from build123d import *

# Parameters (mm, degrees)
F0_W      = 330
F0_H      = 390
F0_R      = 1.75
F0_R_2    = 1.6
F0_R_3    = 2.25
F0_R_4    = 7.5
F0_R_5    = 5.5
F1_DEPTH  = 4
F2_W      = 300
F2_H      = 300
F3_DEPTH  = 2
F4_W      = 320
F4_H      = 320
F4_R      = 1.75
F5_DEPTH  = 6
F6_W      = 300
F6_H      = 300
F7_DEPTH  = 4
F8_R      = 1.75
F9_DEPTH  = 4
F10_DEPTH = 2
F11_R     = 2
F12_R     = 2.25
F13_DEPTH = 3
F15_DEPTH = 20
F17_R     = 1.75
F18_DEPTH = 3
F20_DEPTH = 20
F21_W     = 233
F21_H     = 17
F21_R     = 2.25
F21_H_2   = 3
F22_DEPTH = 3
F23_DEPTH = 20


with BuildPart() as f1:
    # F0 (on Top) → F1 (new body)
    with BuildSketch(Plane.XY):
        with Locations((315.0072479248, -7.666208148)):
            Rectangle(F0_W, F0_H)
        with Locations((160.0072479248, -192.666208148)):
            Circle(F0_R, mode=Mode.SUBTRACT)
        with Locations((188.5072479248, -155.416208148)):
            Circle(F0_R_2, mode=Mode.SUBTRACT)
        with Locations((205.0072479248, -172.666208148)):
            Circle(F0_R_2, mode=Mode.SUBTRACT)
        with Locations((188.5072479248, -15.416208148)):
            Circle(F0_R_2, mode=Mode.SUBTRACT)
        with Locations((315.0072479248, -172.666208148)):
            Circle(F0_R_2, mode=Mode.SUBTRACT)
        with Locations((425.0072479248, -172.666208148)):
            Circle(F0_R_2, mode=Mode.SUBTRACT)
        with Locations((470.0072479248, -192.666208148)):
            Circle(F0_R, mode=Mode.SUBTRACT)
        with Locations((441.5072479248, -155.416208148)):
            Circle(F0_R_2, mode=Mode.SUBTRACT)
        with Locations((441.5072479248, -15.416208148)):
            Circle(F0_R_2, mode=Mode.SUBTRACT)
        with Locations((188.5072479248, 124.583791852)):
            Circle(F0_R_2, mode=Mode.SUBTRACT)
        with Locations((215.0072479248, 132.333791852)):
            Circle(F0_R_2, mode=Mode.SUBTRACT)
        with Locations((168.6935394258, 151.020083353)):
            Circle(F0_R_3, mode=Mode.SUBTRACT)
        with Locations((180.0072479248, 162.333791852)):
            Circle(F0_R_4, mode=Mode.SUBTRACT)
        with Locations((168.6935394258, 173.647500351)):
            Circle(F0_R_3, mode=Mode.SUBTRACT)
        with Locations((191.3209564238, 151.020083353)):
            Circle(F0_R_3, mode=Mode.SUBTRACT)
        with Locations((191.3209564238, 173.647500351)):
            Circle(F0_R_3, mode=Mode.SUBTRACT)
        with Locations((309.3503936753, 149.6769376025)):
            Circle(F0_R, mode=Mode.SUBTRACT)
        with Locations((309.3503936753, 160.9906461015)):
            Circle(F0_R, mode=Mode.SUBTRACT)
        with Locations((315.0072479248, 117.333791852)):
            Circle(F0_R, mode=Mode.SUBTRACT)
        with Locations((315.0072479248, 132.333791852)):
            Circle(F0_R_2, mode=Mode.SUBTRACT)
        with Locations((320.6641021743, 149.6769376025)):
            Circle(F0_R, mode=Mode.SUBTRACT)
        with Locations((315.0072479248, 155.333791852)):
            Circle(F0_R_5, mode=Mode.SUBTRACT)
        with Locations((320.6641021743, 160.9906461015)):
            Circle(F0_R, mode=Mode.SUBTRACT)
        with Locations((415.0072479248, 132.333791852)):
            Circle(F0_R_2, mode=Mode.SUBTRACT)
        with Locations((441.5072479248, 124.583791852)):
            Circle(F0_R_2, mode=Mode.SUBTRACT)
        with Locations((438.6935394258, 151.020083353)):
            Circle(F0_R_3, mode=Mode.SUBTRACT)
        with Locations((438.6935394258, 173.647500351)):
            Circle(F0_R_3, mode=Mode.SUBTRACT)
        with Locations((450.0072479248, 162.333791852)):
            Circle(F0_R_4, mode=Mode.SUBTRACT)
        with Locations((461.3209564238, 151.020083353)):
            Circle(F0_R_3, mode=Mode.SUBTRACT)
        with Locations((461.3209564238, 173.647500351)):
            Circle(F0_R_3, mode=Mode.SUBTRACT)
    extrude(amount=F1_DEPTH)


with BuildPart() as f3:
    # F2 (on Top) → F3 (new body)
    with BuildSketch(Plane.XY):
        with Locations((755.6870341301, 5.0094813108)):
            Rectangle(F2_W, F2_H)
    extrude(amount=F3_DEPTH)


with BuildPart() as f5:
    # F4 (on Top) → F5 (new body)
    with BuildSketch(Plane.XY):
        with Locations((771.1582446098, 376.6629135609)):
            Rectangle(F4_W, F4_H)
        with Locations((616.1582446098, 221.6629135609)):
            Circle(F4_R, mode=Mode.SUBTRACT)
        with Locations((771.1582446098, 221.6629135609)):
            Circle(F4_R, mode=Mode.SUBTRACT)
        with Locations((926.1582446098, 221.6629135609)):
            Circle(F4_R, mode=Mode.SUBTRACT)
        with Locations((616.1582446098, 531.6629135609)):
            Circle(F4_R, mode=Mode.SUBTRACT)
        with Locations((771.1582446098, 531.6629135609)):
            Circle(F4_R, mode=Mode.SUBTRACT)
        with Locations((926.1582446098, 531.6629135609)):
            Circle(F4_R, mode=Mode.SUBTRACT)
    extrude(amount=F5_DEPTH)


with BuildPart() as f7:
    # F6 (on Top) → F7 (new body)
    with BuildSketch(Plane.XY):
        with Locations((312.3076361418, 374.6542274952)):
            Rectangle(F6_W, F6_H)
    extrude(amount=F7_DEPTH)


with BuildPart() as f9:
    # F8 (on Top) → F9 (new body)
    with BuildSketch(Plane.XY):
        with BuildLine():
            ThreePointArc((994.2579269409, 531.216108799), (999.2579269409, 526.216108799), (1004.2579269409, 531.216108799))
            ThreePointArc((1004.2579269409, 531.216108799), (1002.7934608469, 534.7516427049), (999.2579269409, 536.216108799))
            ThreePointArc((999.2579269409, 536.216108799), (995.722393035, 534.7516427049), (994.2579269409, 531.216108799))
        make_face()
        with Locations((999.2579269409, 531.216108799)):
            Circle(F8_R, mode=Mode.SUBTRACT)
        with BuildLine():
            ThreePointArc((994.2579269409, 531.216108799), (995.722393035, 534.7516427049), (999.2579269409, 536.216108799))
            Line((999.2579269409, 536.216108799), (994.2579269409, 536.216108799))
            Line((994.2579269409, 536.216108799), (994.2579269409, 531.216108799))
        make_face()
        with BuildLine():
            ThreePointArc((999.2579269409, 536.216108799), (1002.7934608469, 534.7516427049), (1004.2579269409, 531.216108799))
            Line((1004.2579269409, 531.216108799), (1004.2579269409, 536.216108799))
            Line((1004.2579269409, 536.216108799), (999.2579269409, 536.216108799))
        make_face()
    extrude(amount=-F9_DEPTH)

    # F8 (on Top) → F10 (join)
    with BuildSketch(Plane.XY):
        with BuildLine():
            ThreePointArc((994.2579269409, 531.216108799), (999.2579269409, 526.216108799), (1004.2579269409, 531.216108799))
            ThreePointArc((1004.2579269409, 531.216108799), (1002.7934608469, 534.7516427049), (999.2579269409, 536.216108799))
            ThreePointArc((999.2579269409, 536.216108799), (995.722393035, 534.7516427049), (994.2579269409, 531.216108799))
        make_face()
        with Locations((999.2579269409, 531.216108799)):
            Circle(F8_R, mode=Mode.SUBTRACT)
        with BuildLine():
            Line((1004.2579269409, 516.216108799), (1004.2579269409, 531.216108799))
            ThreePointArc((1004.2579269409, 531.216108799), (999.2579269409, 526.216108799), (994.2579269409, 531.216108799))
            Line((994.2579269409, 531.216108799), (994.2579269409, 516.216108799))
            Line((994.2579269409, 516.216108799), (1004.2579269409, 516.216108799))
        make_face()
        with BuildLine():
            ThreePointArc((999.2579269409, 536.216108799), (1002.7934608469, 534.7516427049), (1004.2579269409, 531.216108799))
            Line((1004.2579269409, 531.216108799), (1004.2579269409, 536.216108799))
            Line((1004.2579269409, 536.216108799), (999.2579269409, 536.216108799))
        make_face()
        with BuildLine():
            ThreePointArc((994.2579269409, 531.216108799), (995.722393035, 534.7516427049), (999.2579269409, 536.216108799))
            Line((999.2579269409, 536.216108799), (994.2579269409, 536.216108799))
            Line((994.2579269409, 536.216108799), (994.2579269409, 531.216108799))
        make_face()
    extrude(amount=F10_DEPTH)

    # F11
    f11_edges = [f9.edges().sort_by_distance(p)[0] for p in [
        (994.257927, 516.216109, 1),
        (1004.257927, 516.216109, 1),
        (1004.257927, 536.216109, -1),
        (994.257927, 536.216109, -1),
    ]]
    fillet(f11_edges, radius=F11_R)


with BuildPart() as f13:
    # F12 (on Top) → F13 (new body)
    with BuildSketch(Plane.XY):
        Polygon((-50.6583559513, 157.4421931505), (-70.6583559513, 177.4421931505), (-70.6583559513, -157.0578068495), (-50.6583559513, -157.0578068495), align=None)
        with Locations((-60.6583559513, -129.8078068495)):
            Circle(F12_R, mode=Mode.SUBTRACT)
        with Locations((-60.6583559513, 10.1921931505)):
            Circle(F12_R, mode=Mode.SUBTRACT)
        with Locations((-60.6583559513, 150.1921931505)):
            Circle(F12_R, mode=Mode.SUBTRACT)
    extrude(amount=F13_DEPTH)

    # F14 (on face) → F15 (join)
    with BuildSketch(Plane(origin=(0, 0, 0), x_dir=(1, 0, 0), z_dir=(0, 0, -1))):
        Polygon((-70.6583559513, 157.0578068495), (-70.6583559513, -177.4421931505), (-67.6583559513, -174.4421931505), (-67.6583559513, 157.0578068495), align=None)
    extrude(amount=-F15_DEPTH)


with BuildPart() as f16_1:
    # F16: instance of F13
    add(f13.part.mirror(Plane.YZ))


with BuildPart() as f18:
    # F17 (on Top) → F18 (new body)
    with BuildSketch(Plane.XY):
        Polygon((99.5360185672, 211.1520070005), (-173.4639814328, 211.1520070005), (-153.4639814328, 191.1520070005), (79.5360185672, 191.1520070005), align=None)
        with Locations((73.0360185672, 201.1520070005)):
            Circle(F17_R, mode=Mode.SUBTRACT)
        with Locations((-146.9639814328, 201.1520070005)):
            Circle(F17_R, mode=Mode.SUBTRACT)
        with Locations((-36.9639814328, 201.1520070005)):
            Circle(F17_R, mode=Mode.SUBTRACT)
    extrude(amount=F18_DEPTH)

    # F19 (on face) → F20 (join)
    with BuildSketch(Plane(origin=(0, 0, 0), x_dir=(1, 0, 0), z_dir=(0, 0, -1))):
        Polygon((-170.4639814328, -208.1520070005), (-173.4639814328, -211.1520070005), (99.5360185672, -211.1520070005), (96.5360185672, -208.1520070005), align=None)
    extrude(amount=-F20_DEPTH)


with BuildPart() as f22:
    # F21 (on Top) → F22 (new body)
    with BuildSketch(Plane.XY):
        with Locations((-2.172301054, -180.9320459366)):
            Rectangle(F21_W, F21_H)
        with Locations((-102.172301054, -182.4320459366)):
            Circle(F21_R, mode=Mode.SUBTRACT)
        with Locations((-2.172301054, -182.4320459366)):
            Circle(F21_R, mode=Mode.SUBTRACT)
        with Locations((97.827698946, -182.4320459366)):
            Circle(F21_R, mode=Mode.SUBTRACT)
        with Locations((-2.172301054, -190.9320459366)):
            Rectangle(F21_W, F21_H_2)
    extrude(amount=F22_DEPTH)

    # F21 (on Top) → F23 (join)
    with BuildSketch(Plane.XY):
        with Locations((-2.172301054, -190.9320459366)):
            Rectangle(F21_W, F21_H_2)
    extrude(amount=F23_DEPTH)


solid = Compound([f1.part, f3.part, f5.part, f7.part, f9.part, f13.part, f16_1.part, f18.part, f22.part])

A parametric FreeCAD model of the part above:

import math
import FreeCAD as App
import Part
import Sketcher

V = App.Vector
Q = App.Units.Quantity


def edges_at(feature, points):
    """Names of the edges that pass closest to the given points."""
    edges = feature.Shape.Edges
    near = lambda p: min(range(len(edges)), key=lambda i: edges[i].distToShape(Part.Vertex(*p))[0])
    return sorted({f"Edge{near(p) + 1}" for p in points})

doc = App.newDocument("Part")
params = doc.addObject("Spreadsheet::Sheet", "Params")
for row, (alias, value) in enumerate([
    ("sketch1_diameter", "15 mm"),
    ("sketch1_diameter2", "11 mm"),
    ("sketch1_diameter3", "3.5 mm"),
    ("sketch1_diameter4", "3.2 mm"),
    ("sketch1_diameter5", "4.5 mm"),
    ("pad1_length", "4 mm"),
    ("sketch2_width", "300 mm"),
    ("pad2_length", "2 mm"),
    ("sketch3_diameter", "3.5 mm"),
    ("sketch3_width", "320 mm"),
    ("pad3_length", "6 mm"),
    ("sketch4_width", "300 mm"),
    ("pad4_length", "4 mm"),
    ("sketch5_radius", "5 mm"),
    ("sketch5_diameter", "3.5 mm"),
    ("sketch5_height", "5 mm"),
    ("pad5_length", "4 mm"),
    ("sketch6_diameter", "3.5 mm"),
    ("sketch6_width", "10 mm"),
    ("sketch6_height", "20 mm"),
    ("pad6_length", "2 mm"),
    ("fillet_radius", "2 mm"),
    ("sketch7_diameter", "4.5 mm"),
    ("sketch7_width", "20 mm"),
    ("sketch7_height", "334.5 mm"),
    ("pad7_length", "3 mm"),
    ("sketch8_width", "3 mm"),
    ("sketch8_height", "334.5 mm"),
    ("pad8_length", "20 mm"),
    ("sketch9_diameter", "3.5 mm"),
    ("sketch9_width", "273 mm"),
    ("sketch9_width2", "233 mm"),
    ("pad9_length", "3 mm"),
    ("sketch10_width", "273 mm"),
    ("sketch10_width2", "267 mm"),
    ("pad10_length", "20 mm"),
    ("sketch11_diameter", "4.5 mm"),
    ("sketch11_width", "233 mm"),
    ("sketch11_height", "20 mm"),
    ("pad11_length", "3 mm"),
    ("sketch12_width", "233 mm"),
    ("sketch12_height", "3 mm"),
    ("pad12_length", "20 mm"),
], start=1):
    params.set(f"A{row}", alias)
    params.set(f"B{row}", "=" + value)
    params.setAlias(f"B{row}", alias)

body = doc.addObject("PartDesign::Body", "Body")

# Sketch on XY plane
sketch1 = doc.addObject("Sketcher::SketchObject", "Sketch")
body.addObject(sketch1)
sketch1.AttachmentSupport = (doc.XY_Plane, [""])
sketch1.MapMode = "FlatFace"
sketch1.addGeometry([
    Part.LineSegment(V(150, 187.3, 0), V(150, -202.7, 0)),  # 0
    Part.LineSegment(V(150, -202.7, 0), V(480, -202.7, 0)),  # 1
    Part.LineSegment(V(480, -202.7, 0), V(480, 187.3, 0)),  # 2
    Part.LineSegment(V(480, 187.3, 0), V(150, 187.3, 0)),  # 3
    Part.Circle(V(160, -192.7, 0), V(0, 0, 1), 1.8),  # 4
    Part.Circle(V(188.5, -155.4, 0), V(0, 0, 1), 1.6),  # 5
    Part.Circle(V(205, -172.7, 0), V(0, 0, 1), 1.6),  # 6
    Part.Circle(V(188.5, -15.4, 0), V(0, 0, 1), 1.6),  # 7
    Part.Circle(V(315, -172.7, 0), V(0, 0, 1), 1.6),  # 8
    Part.Circle(V(425, -172.7, 0), V(0, 0, 1), 1.6),  # 9
    Part.Circle(V(470, -192.7, 0), V(0, 0, 1), 1.8),  # 10
    Part.Circle(V(441.5, -155.4, 0), V(0, 0, 1), 1.6),  # 11
    Part.Circle(V(441.5, -15.4, 0), V(0, 0, 1), 1.6),  # 12
    Part.Circle(V(188.5, 124.6, 0), V(0, 0, 1), 1.6),  # 13
    Part.Circle(V(168.7, 151, 0), V(0, 0, 1), 2.2),  # 14
    Part.Circle(V(191.3, 151, 0), V(0, 0, 1), 2.2),  # 15
    Part.Circle(V(168.7, 173.6, 0), V(0, 0, 1), 2.2),  # 16
    Part.Circle(V(180, 162.3, 0), V(0, 0, 1), 7.5),  # 17
    Part.Circle(V(191.3, 173.6, 0), V(0, 0, 1), 2.2),  # 18
    Part.Circle(V(215, 132.3, 0), V(0, 0, 1), 1.6),  # 19
    Part.Circle(V(309.4, 149.7, 0), V(0, 0, 1), 1.8),  # 20
    Part.Circle(V(309.4, 161, 0), V(0, 0, 1), 1.8),  # 21
    Part.Circle(V(315, 117.3, 0), V(0, 0, 1), 1.8),  # 22
    Part.Circle(V(315, 132.3, 0), V(0, 0, 1), 1.6),  # 23
    Part.Circle(V(320.7, 149.7, 0), V(0, 0, 1), 1.8),  # 24
    Part.Circle(V(315, 155.3, 0), V(0, 0, 1), 5.5),  # 25
    Part.Circle(V(320.7, 161, 0), V(0, 0, 1), 1.8),  # 26
    Part.Circle(V(441.5, 124.6, 0), V(0, 0, 1), 1.6),  # 27
    Part.Circle(V(415, 132.3, 0), V(0, 0, 1), 1.6),  # 28
    Part.Circle(V(438.7, 151, 0), V(0, 0, 1), 2.2),  # 29
    Part.Circle(V(461.3, 151, 0), V(0, 0, 1), 2.2),  # 30
    Part.Circle(V(450, 162.3, 0), V(0, 0, 1), 7.5),  # 31
    Part.Circle(V(438.7, 173.6, 0), V(0, 0, 1), 2.2),  # 32
    Part.Circle(V(461.3, 173.6, 0), V(0, 0, 1), 2.2),  # 33
], False)
sketch1.addConstraint([
    Sketcher.Constraint("Coincident", 0, 2, 1, 1),
    Sketcher.Constraint("Coincident", 1, 2, 2, 1),
    Sketcher.Constraint("Coincident", 2, 2, 3, 1),
    Sketcher.Constraint("Coincident", 3, 2, 0, 1),
    Sketcher.Constraint("Vertical", 0),
    Sketcher.Constraint("Horizontal", 1),
    Sketcher.Constraint("Vertical", 2),
    Sketcher.Constraint("Horizontal", 3),
    Sketcher.Constraint("Equal", 5, 6),
    Sketcher.Constraint("Equal", 6, 7),
    Sketcher.Constraint("Equal", 7, 8),
    Sketcher.Constraint("Equal", 8, 9),
    Sketcher.Constraint("Equal", 4, 10),
    Sketcher.Constraint("Equal", 9, 11),
    Sketcher.Constraint("Equal", 11, 12),
    Sketcher.Constraint("Equal", 12, 13),
    Sketcher.Constraint("Equal", 14, 15),
    Sketcher.Constraint("Equal", 15, 16),
    Sketcher.Constraint("Equal", 16, 18),
    Sketcher.Constraint("Equal", 13, 19),
    Sketcher.Constraint("Equal", 10, 20),
    Sketcher.Constraint("Equal", 20, 21),
    Sketcher.Constraint("Equal", 21, 22),
    Sketcher.Constraint("Equal", 19, 23),
    Sketcher.Constraint("Equal", 22, 24),
    Sketcher.Constraint("Equal", 24, 26),
    Sketcher.Constraint("Equal", 23, 27),
    Sketcher.Constraint("Equal", 27, 28),
    Sketcher.Constraint("Equal", 18, 29),
    Sketcher.Constraint("Equal", 29, 30),
    Sketcher.Constraint("Equal", 17, 31),
    Sketcher.Constraint("Equal", 30, 32),
    Sketcher.Constraint("Equal", 32, 33),
    Sketcher.Constraint("Horizontal", 6, 3, 8, 3),
    Sketcher.Constraint("Horizontal", 8, 3, 9, 3),
    Sketcher.Constraint("Horizontal", 4, 3, 10, 3),
    Sketcher.Constraint("Horizontal", 5, 3, 11, 3),
    Sketcher.Constraint("Horizontal", 7, 3, 12, 3),
    Sketcher.Constraint("Horizontal", 14, 3, 15, 3),
    Sketcher.Constraint("Horizontal", 16, 3, 18, 3),
    Sketcher.Constraint("Horizontal", 19, 3, 23, 3),
    Sketcher.Constraint("Horizontal", 20, 3, 24, 3),
    Sketcher.Constraint("Horizontal", 21, 3, 26, 3),
    Sketcher.Constraint("Horizontal", 13, 3, 27, 3),
    Sketcher.Constraint("Horizontal", 23, 3, 28, 3),
    Sketcher.Constraint("Horizontal", 15, 3, 29, 3),
    Sketcher.Constraint("Horizontal", 29, 3, 30, 3),
    Sketcher.Constraint("Horizontal", 17, 3, 31, 3),
    Sketcher.Constraint("Horizontal", 18, 3, 32, 3),
    Sketcher.Constraint("Horizontal", 32, 3, 33, 3),
    Sketcher.Constraint("Vertical", 5, 3, 7, 3),
    Sketcher.Constraint("Vertical", 11, 3, 12, 3),
    Sketcher.Constraint("Vertical", 7, 3, 13, 3),
    Sketcher.Constraint("Vertical", 14, 3, 16, 3),
    Sketcher.Constraint("Vertical", 15, 3, 18, 3),
    Sketcher.Constraint("Vertical", 20, 3, 21, 3),
    Sketcher.Constraint("Vertical", 8, 3, 22, 3),
    Sketcher.Constraint("Vertical", 22, 3, 23, 3),
    Sketcher.Constraint("Vertical", 23, 3, 25, 3),
    Sketcher.Constraint("Vertical", 24, 3, 26, 3),
    Sketcher.Constraint("Vertical", 12, 3, 27, 3),
    Sketcher.Constraint("Vertical", 29, 3, 32, 3),
    Sketcher.Constraint("Vertical", 30, 3, 33, 3),
    Sketcher.Constraint("Diameter", 17, Q("15 mm")),
    Sketcher.Constraint("Diameter", 25, Q("11 mm")),
    Sketcher.Constraint("Diameter", 4, Q("3.5 mm")),
    Sketcher.Constraint("Diameter", 5, Q("3.2 mm")),
    Sketcher.Constraint("Diameter", 14, Q("4.5 mm")),
    Sketcher.Constraint("DistanceX", 1, 1, 1, 2, Q("330 mm")),
    Sketcher.Constraint("DistanceY", 0, 2, 0, 1, Q("390 mm")),
    Sketcher.Constraint("DistanceX", 4, 3, 6, 3, Q("45 mm")),
    Sketcher.Constraint("DistanceY", 4, 3, 6, 3, Q("20 mm")),
    Sketcher.Constraint("DistanceY", 5, 3, 7, 3, Q("140 mm")),
    Sketcher.Constraint("DistanceX", 6, 3, 8, 3, Q("110 mm")),
    Sketcher.Constraint("DistanceX", 8, 3, 9, 3, Q("110 mm")),
    Sketcher.Constraint("DistanceX", 9, 3, 10, 3, Q("45 mm")),
    Sketcher.Constraint("DistanceX", 5, 3, 11, 3, Q("253 mm")),
    Sketcher.Constraint("DistanceY", 7, 3, 13, 3, Q("140 mm")),
    Sketcher.Constraint("DistanceX", 17, 3, 19, 3, Q("35 mm")),
    Sketcher.Constraint("DistanceY", 19, 3, 17, 3, Q("30 mm")),
    Sketcher.Constraint("DistanceX", 19, 3, 22, 3, Q("100 mm")),
    Sketcher.Constraint("DistanceY", 22, 3, 19, 3, Q("15 mm")),
    Sketcher.Constraint("DistanceY", 23, 3, 25, 3, Q("23 mm")),
    Sketcher.Constraint("DistanceX", 23, 3, 28, 3, Q("100 mm")),
    Sketcher.Constraint("DistanceX", 28, 3, 31, 3, Q("35 mm")),
    Sketcher.Constraint("DistanceX", 0, 2, 4, 3, Q("10 mm")),
    Sketcher.Constraint("DistanceY", 0, 2, 4, 3, Q("10 mm")),
    Sketcher.Constraint("DistanceY", 31, 3, 2, 2, Q("25 mm")),
    Sketcher.Constraint("DistanceX", 4, 3, 5, 3, Q("28.5 mm")),
    Sketcher.Constraint("DistanceY", 4, 3, 5, 3, Q("37.25 mm")),
    Sketcher.Constraint("DistanceY", -1, 1, 16, 3, Q("173.6475 mm")),
    Sketcher.Constraint("DistanceY", 4, 3, -1, 1, Q("192.666208 mm")),
    Sketcher.Constraint("DistanceX", -1, 1, 14, 3, Q("168.693539 mm")),
    Sketcher.Constraint("DistanceX", -1, 1, 29, 3, Q("438.693539 mm")),
    Sketcher.Constraint("DistanceX", 14, 3, 13, 3, Q("19.813708 mm")),
    Sketcher.Constraint("DistanceY", 13, 3, 14, 3, Q("26.436292 mm")),
    Sketcher.Constraint("DistanceX", 13, 3, 15, 3, Q("2.813708 mm")),
    Sketcher.Constraint("DistanceY", 20, 3, 21, 3, Q("11.313708 mm")),
    Sketcher.Constraint("DistanceX", 20, 3, 24, 3, Q("11.313708 mm")),
    Sketcher.Constraint("DistanceX", 27, 3, 30, 3, Q("19.813708 mm")),
    Sketcher.Constraint("DistanceX", -1, 1, 20, 3, Q("309.350394 mm")),
    Sketcher.Constraint("DistanceY", -1, 1, 20, 3, Q("149.676938 mm")),
])
sketch1.setExpression("Constraints[63]", "Params.sketch1_diameter")
sketch1.setExpression("Constraints[64]", "Params.sketch1_diameter2")
sketch1.setExpression("Constraints[65]", "Params.sketch1_diameter3")
sketch1.setExpression("Constraints[66]", "Params.sketch1_diameter4")
sketch1.setExpression("Constraints[67]", "Params.sketch1_diameter5")
pad1 = doc.addObject("PartDesign::Pad", "Pad")
body.addObject(pad1)
pad1.Profile = sketch1
pad1.setExpression("Length", "Params.pad1_length")
body2 = doc.addObject("PartDesign::Body", "Body001")

# Sketch on XY plane
sketch2 = doc.addObject("Sketcher::SketchObject", "Sketch001")
body2.addObject(sketch2)
sketch2.AttachmentSupport = (doc.getObject("XY_Plane001"), [""])
sketch2.MapMode = "FlatFace"
sketch2.addGeometry([
    Part.LineSegment(V(606, 155, 0), V(606, -145, 0)),
    Part.LineSegment(V(606, -145, 0), V(906, -145, 0)),
    Part.LineSegment(V(906, -145, 0), V(906, 155, 0)),
    Part.LineSegment(V(906, 155, 0), V(606, 155, 0)),
], False)
sketch2.addConstraint([
    Sketcher.Constraint("Coincident", 0, 2, 1, 1),
    Sketcher.Constraint("Coincident", 1, 2, 2, 1),
    Sketcher.Constraint("Coincident", 2, 2, 3, 1),
    Sketcher.Constraint("Coincident", 3, 2, 0, 1),
    Sketcher.Constraint("Vertical", 0),
    Sketcher.Constraint("Horizontal", 1),
    Sketcher.Constraint("Vertical", 2),
    Sketcher.Constraint("Horizontal", 3),
    Sketcher.Constraint("Equal", 3, 0),
    Sketcher.Constraint("DistanceX", 1, 1, 1, 2, Q("300 mm")),
    Sketcher.Constraint("DistanceY", 0, 2, -1, 1, Q("144.990519 mm")),
    Sketcher.Constraint("DistanceX", -1, 1, 0, 2, Q("605.687034 mm")),
])
sketch2.setExpression("Constraints[9]", "Params.sketch2_width")
pad2 = doc.addObject("PartDesign::Pad", "Pad001")
body2.addObject(pad2)
pad2.Profile = sketch2
pad2.setExpression("Length", "Params.pad2_length")
body3 = doc.addObject("PartDesign::Body", "Body002")

# Sketch on XY plane
sketch3 = doc.addObject("Sketcher::SketchObject", "Sketch002")
body3.addObject(sketch3)
sketch3.AttachmentSupport = (doc.getObject("XY_Plane002"), [""])
sketch3.MapMode = "FlatFace"
sketch3.addGeometry([
    Part.LineSegment(V(611.2, 536.7, 0), V(611.2, 216.7, 0)),  # 0
    Part.LineSegment(V(611.2, 216.7, 0), V(931.2, 216.7, 0)),  # 1
    Part.LineSegment(V(931.2, 216.7, 0), V(931.2, 536.7, 0)),  # 2
    Part.LineSegment(V(931.2, 536.7, 0), V(611.2, 536.7, 0)),  # 3
    Part.Circle(V(616.2, 221.7, 0), V(0, 0, 1), 1.8),  # 4
    Part.Circle(V(771.2, 221.7, 0), V(0, 0, 1), 1.8),  # 5
    Part.Circle(V(926.2, 221.7, 0), V(0, 0, 1), 1.8),  # 6
    Part.Circle(V(616.2, 531.7, 0), V(0, 0, 1), 1.8),  # 7
    Part.Circle(V(771.2, 531.7, 0), V(0, 0, 1), 1.8),  # 8
    Part.Circle(V(926.2, 531.7, 0), V(0, 0, 1), 1.8),  # 9
], False)
sketch3.addConstraint([
    Sketcher.Constraint("Coincident", 0, 2, 1, 1),
    Sketcher.Constraint("Coincident", 1, 2, 2, 1),
    Sketcher.Constraint("Coincident", 2, 2, 3, 1),
    Sketcher.Constraint("Coincident", 3, 2, 0, 1),
    Sketcher.Constraint("Vertical", 0),
    Sketcher.Constraint("Horizontal", 1),
    Sketcher.Constraint("Vertical", 2),
    Sketcher.Constraint("Horizontal", 3),
    Sketcher.Constraint("Equal", 4, 5),
    Sketcher.Constraint("Equal", 5, 6),
    Sketcher.Constraint("Equal", 6, 7),
    Sketcher.Constraint("Equal", 7, 8),
    Sketcher.Constraint("Equal", 8, 9),
    Sketcher.Constraint("Horizontal", 4, 3, 5, 3),
    Sketcher.Constraint("Horizontal", 5, 3, 6, 3),
    Sketcher.Constraint("Horizontal", 7, 3, 8, 3),
    Sketcher.Constraint("Horizontal", 8, 3, 9, 3),
    Sketcher.Constraint("Vertical", 4, 3, 7, 3),
    Sketcher.Constraint("Vertical", 5, 3, 8, 3),
    Sketcher.Constraint("Vertical", 6, 3, 9, 3),
    Sketcher.Constraint("Equal", 3, 0),
    Sketcher.Constraint("Diameter", 4, Q("3.5 mm")),
    Sketcher.Constraint("DistanceX", 1, 1, 1, 2, Q("320 mm")),
    Sketcher.Constraint("DistanceX", 4, 3, 5, 3, Q("155 mm")),
    Sketcher.Constraint("DistanceX", 5, 3, 6, 3, Q("155 mm")),
    Sketcher.Constraint("DistanceY", 4, 3, 7, 3, Q("310 mm")),
    Sketcher.Constraint("DistanceX", 0, 2, 4, 3, Q("5 mm")),
    Sketcher.Constraint("DistanceY", 0, 2, 4, 3, Q("5 mm")),
    Sketcher.Constraint("DistanceX", -1, 1, 4, 3, Q("616.158245 mm")),
    Sketcher.Constraint("DistanceY", -1, 1, 4, 3, Q("221.662914 mm")),
])
sketch3.setExpression("Constraints[21]", "Params.sketch3_diameter")
sketch3.setExpression("Constraints[22]", "Params.sketch3_width")
pad3 = doc.addObject("PartDesign::Pad", "Pad002")
body3.addObject(pad3)
pad3.Profile = sketch3
pad3.setExpression("Length", "Params.pad3_length")
body4 = doc.addObject("PartDesign::Body", "Body003")

# Sketch on XY plane
sketch4 = doc.addObject("Sketcher::SketchObject", "Sketch003")
body4.addObject(sketch4)
sketch4.AttachmentSupport = (doc.getObject("XY_Plane003"), [""])
sketch4.MapMode = "FlatFace"
sketch4.addGeometry([
    Part.LineSegment(V(162, 525, 0), V(162, 225, 0)),
    Part.LineSegment(V(162, 225, 0), V(462, 225, 0)),
    Part.LineSegment(V(462, 225, 0), V(462, 525, 0)),
    Part.LineSegment(V(462, 525, 0), V(162, 525, 0)),
], False)
sketch4.addConstraint([
    Sketcher.Constraint("Coincident", 0, 2, 1, 1),
    Sketcher.Constraint("Coincident", 1, 2, 2, 1),
    Sketcher.Constraint("Coincident", 2, 2, 3, 1),
    Sketcher.Constraint("Coincident", 3, 2, 0, 1),
    Sketcher.Constraint("Vertical", 0),
    Sketcher.Constraint("Horizontal", 1),
    Sketcher.Constraint("Vertical", 2),
    Sketcher.Constraint("Horizontal", 3),
    Sketcher.Constraint("Equal", 3, 0),
    Sketcher.Constraint("DistanceX", 1, 1, 1, 2, Q("300 mm")),
    Sketcher.Constraint("DistanceX", -1, 1, 0, 2, Q("162.307636 mm")),
    Sketcher.Constraint("DistanceY", -1, 1, 0, 2, Q("224.654227 mm")),
])
sketch4.setExpression("Constraints[9]", "Params.sketch4_width")
pad4 = doc.addObject("PartDesign::Pad", "Pad003")
body4.addObject(pad4)
pad4.Profile = sketch4
pad4.setExpression("Length", "Params.pad4_length")
body5 = doc.addObject("PartDesign::Body", "Body004")

# Sketch on XY plane
sketch5 = doc.addObject("Sketcher::SketchObject", "Sketch004")
body5.addObject(sketch5)
sketch5.AttachmentSupport = (doc.getObject("XY_Plane004"), [""])
sketch5.MapMode = "FlatFace"
sketch5.addGeometry([
    Part.ArcOfCircle(Part.Circle(V(999.3, 531.2, 0), V(0, 0, 1), 5), math.radians(180), math.radians(360)),  # 0
    Part.LineSegment(V(1004.3, 531.2, 0), V(1004.3, 536.2, 0)),  # 1
    Part.LineSegment(V(1004.3, 536.2, 0), V(994.3, 536.2, 0)),  # 2
    Part.LineSegment(V(994.3, 536.2, 0), V(994.3, 531.2, 0)),  # 3
    Part.Circle(V(999.3, 531.2, 0), V(0, 0, 1), 1.8),  # 4
], False)
sketch5.addConstraint([
    Sketcher.Constraint("Tangent", 0, 2, 1, 1),
    Sketcher.Constraint("Coincident", 1, 2, 2, 1),
    Sketcher.Constraint("Coincident", 2, 2, 3, 1),
    Sketcher.Constraint("Tangent", 3, 2, 0, 1),
    Sketcher.Constraint("Vertical", 1),
    Sketcher.Constraint("Horizontal", 2),
    Sketcher.Constraint("Vertical", 3),
    Sketcher.Constraint("Coincident", 4, 3, 0, 3),
    Sketcher.Constraint("Radius", 0, Q("5 mm")),
    Sketcher.Constraint("Diameter", 4, Q("3.5 mm")),
    Sketcher.Constraint("DistanceY", 1, 1, 1, 2, Q("5 mm")),
    Sketcher.Constraint("DistanceY", -1, 1, 0, 3, Q("531.216109 mm")),
    Sketcher.Constraint("DistanceX", -1, 1, 0, 3, Q("999.257927 mm")),
])
sketch5.setExpression("Constraints[8]", "Params.sketch5_radius")
sketch5.setExpression("Constraints[9]", "Params.sketch5_diameter")
sketch5.setExpression("Constraints[10]", "Params.sketch5_height")
pad5 = doc.addObject("PartDesign::Pad", "Pad004")
body5.addObject(pad5)
pad5.Profile = sketch5
pad5.setExpression("Length", "Params.pad5_length")
pad5.Reversed = True

# Sketch on XY plane
sketch6 = doc.addObject("Sketcher::SketchObject", "Sketch005")
body5.addObject(sketch6)
sketch6.AttachmentSupport = (doc.getObject("XY_Plane004"), [""])
sketch6.MapMode = "FlatFace"
sketch6.addGeometry([
    Part.LineSegment(V(994.3, 516.2, 0), V(1004.3, 516.2, 0)),  # 0
    Part.LineSegment(V(1004.3, 516.2, 0), V(1004.3, 536.2, 0)),  # 1
    Part.LineSegment(V(1004.3, 536.2, 0), V(994.3, 536.2, 0)),  # 2
    Part.LineSegment(V(994.3, 536.2, 0), V(994.3, 516.2, 0)),  # 3
    Part.Circle(V(999.3, 531.2, 0), V(0, 0, 1), 1.8),  # 4
], False)
sketch6.addConstraint([
    Sketcher.Constraint("Coincident", 0, 2, 1, 1),
    Sketcher.Constraint("Coincident", 1, 2, 2, 1),
    Sketcher.Constraint("Coincident", 2, 2, 3, 1),
    Sketcher.Constraint("Coincident", 3, 2, 0, 1),
    Sketcher.Constraint("Horizontal", 0),
    Sketcher.Constraint("Vertical", 1),
    Sketcher.Constraint("Horizontal", 2),
    Sketcher.Constraint("Vertical", 3),
    Sketcher.Constraint("Diameter", 4, Q("3.5 mm")),
    Sketcher.Constraint("DistanceX", 0, 1, 0, 2, Q("10 mm")),
    Sketcher.Constraint("DistanceY", 1, 1, 1, 2, Q("20 mm")),
    Sketcher.Constraint("DistanceX", 4, 3, 0, 2, Q("5 mm")),
    Sketcher.Constraint("DistanceY", 0, 2, 4, 3, Q("15 mm")),
    Sketcher.Constraint("DistanceY", -1, 1, 4, 3, Q("531.216109 mm")),
    Sketcher.Constraint("DistanceX", -1, 1, 4, 3, Q("999.257927 mm")),
])
sketch6.setExpression("Constraints[8]", "Params.sketch6_diameter")
sketch6.setExpression("Constraints[9]", "Params.sketch6_width")
sketch6.setExpression("Constraints[10]", "Params.sketch6_height")
pad6 = doc.addObject("PartDesign::Pad", "Pad005")
body5.addObject(pad6)
pad6.Profile = sketch6
pad6.setExpression("Length", "Params.pad6_length")
doc.recompute()

fillet = doc.addObject("PartDesign::Fillet", "Fillet")
body5.addObject(fillet)
fillet.Base = (pad6, edges_at(pad6, [
    (994.258, 516.216, 1),
    (1004.258, 516.216, 1),
    (1004.258, 536.216, -1),
    (994.258, 536.216, -1),
]))
fillet.setExpression("Radius", "Params.fillet_radius")
body6 = doc.addObject("PartDesign::Body", "Body005")

# Sketch on XY plane
sketch7 = doc.addObject("Sketcher::SketchObject", "Sketch006")
body6.addObject(sketch7)
sketch7.AttachmentSupport = (doc.getObject("XY_Plane005"), [""])
sketch7.MapMode = "FlatFace"
sketch7.addGeometry([
    Part.LineSegment(V(-50.7, 157.4, 0), V(-70.7, 177.4, 0)),  # 0
    Part.LineSegment(V(-70.7, 177.4, 0), V(-70.7, -157.1, 0)),  # 1
    Part.LineSegment(V(-70.7, -157.1, 0), V(-50.7, -157.1, 0)),  # 2
    Part.LineSegment(V(-50.7, -157.1, 0), V(-50.7, 157.4, 0)),  # 3
    Part.Circle(V(-60.7, -129.8, 0), V(0, 0, 1), 2.2),  # 4
    Part.Circle(V(-60.7, 10.2, 0), V(0, 0, 1), 2.2),  # 5
    Part.Circle(V(-60.7, 150.2, 0), V(0, 0, 1), 2.2),  # 6
], False)
sketch7.addConstraint([
    Sketcher.Constraint("Coincident", 0, 2, 1, 1),
    Sketcher.Constraint("Coincident", 1, 2, 2, 1),
    Sketcher.Constraint("Coincident", 2, 2, 3, 1),
    Sketcher.Constraint("Coincident", 3, 2, 0, 1),
    Sketcher.Constraint("Vertical", 1),
    Sketcher.Constraint("Horizontal", 2),
    Sketcher.Constraint("Vertical", 3),
    Sketcher.Constraint("Equal", 4, 5),
    Sketcher.Constraint("Equal", 5, 6),
    Sketcher.Constraint("Vertical", 4, 3, 5, 3),
    Sketcher.Constraint("Vertical", 5, 3, 6, 3),
    Sketcher.Constraint("Diameter", 4, Q("4.5 mm")),
    Sketcher.Constraint("DistanceX", 2, 1, 2, 2, Q("20 mm")),
    Sketcher.Constraint("Angle", 0, Q("135 deg")),
    Sketcher.Constraint("DistanceY", 1, 2, 1, 1, Q("334.5 mm")),
    Sketcher.Constraint("DistanceY", 4, 3, 5, 3, Q("140 mm")),
    Sketcher.Constraint("DistanceY", 5, 3, 6, 3, Q("140 mm")),
    Sketcher.Constraint("DistanceX", 0, 2, 6, 3, Q("10 mm")),
    Sketcher.Constraint("DistanceY", 6, 3, 0, 2, Q("27.25 mm")),
    Sketcher.Constraint("DistanceX", 4, 3, -1, 1, Q("60.658356 mm")),
    Sketcher.Constraint("DistanceY", 4, 3, -1, 1, Q("129.807807 mm")),
])
sketch7.setExpression("Constraints[11]", "Params.sketch7_diameter")
sketch7.setExpression("Constraints[12]", "Params.sketch7_width")
sketch7.setExpression("Constraints[14]", "Params.sketch7_height")
pad7 = doc.addObject("PartDesign::Pad", "Pad006")
body6.addObject(pad7)
pad7.Profile = sketch7
pad7.setExpression("Length", "Params.pad7_length")

# Sketch on XY plane
sketch8 = doc.addObject("Sketcher::SketchObject", "Sketch007")
body6.addObject(sketch8)
sketch8.AttachmentSupport = (doc.getObject("XY_Plane005"), [""])
sketch8.MapMode = "FlatFace"
sketch8.addGeometry([
    Part.LineSegment(V(-70.7, -157.1, 0), V(-70.7, 177.4, 0)),
    Part.LineSegment(V(-70.7, 177.4, 0), V(-67.7, 174.4, 0)),
    Part.LineSegment(V(-67.7, 174.4, 0), V(-67.7, -157.1, 0)),
    Part.LineSegment(V(-67.7, -157.1, 0), V(-70.7, -157.1, 0)),
], False)
sketch8.addConstraint([
    Sketcher.Constraint("Coincident", 0, 2, 1, 1),
    Sketcher.Constraint("Coincident", 1, 2, 2, 1),
    Sketcher.Constraint("Coincident", 2, 2, 3, 1),
    Sketcher.Constraint("Coincident", 3, 2, 0, 1),
    Sketcher.Constraint("Vertical", 0),
    Sketcher.Constraint("Vertical", 2),
    Sketcher.Constraint("Horizontal", 3),
    Sketcher.Constraint("DistanceX", 3, 2, 3, 1, Q("3 mm")),
    Sketcher.Constraint("Angle", 1, Q("-45 deg")),
    Sketcher.Constraint("DistanceY", 0, 1, 0, 2, Q("334.5 mm")),
    Sketcher.Constraint("DistanceX", 0, 2, -1, 1, Q("70.658356 mm")),
    Sketcher.Constraint("DistanceY", -1, 1, 0, 2, Q("177.442193 mm")),
])
sketch8.setExpression("Constraints[7]", "Params.sketch8_width")
sketch8.setExpression("Constraints[9]", "Params.sketch8_height")
pad8 = doc.addObject("PartDesign::Pad", "Pad007")
body6.addObject(pad8)
pad8.Profile = sketch8
pad8.setExpression("Length", "Params.pad8_length")
body7 = doc.addObject("PartDesign::Body", "Body006")
doc.recompute()

mirroring = doc.addObject("Part::Mirroring", "Mirroring")
mirroring.Source = body6
mirroring.Base = V(0, 0, 0)
mirroring.Normal = V(1, 0, 0)
body7.BaseFeature = mirroring
doc.recompute()
body8 = doc.addObject("PartDesign::Body", "Body007")

# Sketch on XY plane
sketch9 = doc.addObject("Sketcher::SketchObject", "Sketch008")
body8.addObject(sketch9)
sketch9.AttachmentSupport = (doc.getObject("XY_Plane007"), [""])
sketch9.MapMode = "FlatFace"
sketch9.addGeometry([
    Part.LineSegment(V(99.5, 211.2, 0), V(-173.5, 211.2, 0)),  # 0
    Part.LineSegment(V(-173.5, 211.2, 0), V(-153.5, 191.2, 0)),  # 1
    Part.LineSegment(V(-153.5, 191.2, 0), V(79.5, 191.2, 0)),  # 2
    Part.LineSegment(V(79.5, 191.2, 0), V(99.5, 211.2, 0)),  # 3
    Part.Circle(V(-147, 201.2, 0), V(0, 0, 1), 1.8),  # 4
    Part.Circle(V(-37, 201.2, 0), V(0, 0, 1), 1.8),  # 5
    Part.Circle(V(73, 201.2, 0), V(0, 0, 1), 1.8),  # 6
], False)
sketch9.addConstraint([
    Sketcher.Constraint("Coincident", 0, 2, 1, 1),
    Sketcher.Constraint("Coincident", 1, 2, 2, 1),
    Sketcher.Constraint("Coincident", 2, 2, 3, 1),
    Sketcher.Constraint("Coincident", 3, 2, 0, 1),
    Sketcher.Constraint("Horizontal", 0),
    Sketcher.Constraint("Horizontal", 2),
    Sketcher.Constraint("Equal", 4, 5),
    Sketcher.Constraint("Equal", 5, 6),
    Sketcher.Constraint("Perpendicular", 1, 3),
    Sketcher.Constraint("Horizontal", 4, 3, 5, 3),
    Sketcher.Constraint("Horizontal", 5, 3, 6, 3),
    Sketcher.Constraint("Equal", 1, 3),
    Sketcher.Constraint("Diameter", 4, Q("3.5 mm")),
    Sketcher.Constraint("DistanceX", 0, 2, 0, 1, Q("273 mm")),
    Sketcher.Constraint("DistanceX", 2, 1, 2, 2, Q("233 mm")),
    Sketcher.Constraint("DistanceX", 4, 3, 5, 3, Q("110 mm")),
    Sketcher.Constraint("DistanceX", 5, 3, 6, 3, Q("110 mm")),
    Sketcher.Constraint("DistanceY", 4, 3, 0, 2, Q("10 mm")),
    Sketcher.Constraint("DistanceX", 0, 2, 4, 3, Q("26.5 mm")),
    Sketcher.Constraint("DistanceX", 4, 3, -1, 1, Q("146.963981 mm")),
    Sketcher.Constraint("DistanceY", -1, 1, 4, 3, Q("201.152007 mm")),
])
sketch9.setExpression("Constraints[12]", "Params.sketch9_diameter")
sketch9.setExpression("Constraints[13]", "Params.sketch9_width")
sketch9.setExpression("Constraints[14]", "Params.sketch9_width2")
pad9 = doc.addObject("PartDesign::Pad", "Pad008")
body8.addObject(pad9)
pad9.Profile = sketch9
pad9.setExpression("Length", "Params.pad9_length")

# Sketch on XY plane
sketch10 = doc.addObject("Sketcher::SketchObject", "Sketch009")
body8.addObject(sketch10)
sketch10.AttachmentSupport = (doc.getObject("XY_Plane007"), [""])
sketch10.MapMode = "FlatFace"
sketch10.addGeometry([
    Part.LineSegment(V(-170.5, 208.2, 0), V(-173.5, 211.2, 0)),
    Part.LineSegment(V(-173.5, 211.2, 0), V(99.5, 211.2, 0)),
    Part.LineSegment(V(99.5, 211.2, 0), V(96.5, 208.2, 0)),
    Part.LineSegment(V(96.5, 208.2, 0), V(-170.5, 208.2, 0)),
], False)
sketch10.addConstraint([
    Sketcher.Constraint("Coincident", 0, 2, 1, 1),
    Sketcher.Constraint("Coincident", 1, 2, 2, 1),
    Sketcher.Constraint("Coincident", 2, 2, 3, 1),
    Sketcher.Constraint("Coincident", 3, 2, 0, 1),
    Sketcher.Constraint("Horizontal", 1),
    Sketcher.Constraint("Horizontal", 3),
    Sketcher.Constraint("Perpendicular", 0, 2),
    Sketcher.Constraint("Equal", 0, 2),
    Sketcher.Constraint("DistanceX", 1, 1, 1, 2, Q("273 mm")),
    Sketcher.Constraint("DistanceX", 3, 2, 3, 1, Q("267 mm")),
    Sketcher.Constraint("DistanceX", 0, 2, -1, 1, Q("173.463981 mm")),
    Sketcher.Constraint("DistanceY", -1, 1, 0, 2, Q("211.152007 mm")),
])
sketch10.setExpression("Constraints[8]", "Params.sketch10_width")
sketch10.setExpression("Constraints[9]", "Params.sketch10_width2")
pad10 = doc.addObject("PartDesign::Pad", "Pad009")
body8.addObject(pad10)
pad10.Profile = sketch10
pad10.setExpression("Length", "Params.pad10_length")
body9 = doc.addObject("PartDesign::Body", "Body008")

# Sketch on XY plane
sketch11 = doc.addObject("Sketcher::SketchObject", "Sketch010")
body9.addObject(sketch11)
sketch11.AttachmentSupport = (doc.getObject("XY_Plane008"), [""])
sketch11.MapMode = "FlatFace"
sketch11.addGeometry([
    Part.LineSegment(V(-118.7, -172.4, 0), V(-118.7, -192.4, 0)),  # 0
    Part.LineSegment(V(-118.7, -192.4, 0), V(114.3, -192.4, 0)),  # 1
    Part.LineSegment(V(114.3, -192.4, 0), V(114.3, -172.4, 0)),  # 2
    Part.LineSegment(V(114.3, -172.4, 0), V(-118.7, -172.4, 0)),  # 3
    Part.Circle(V(-102.2, -182.4, 0), V(0, 0, 1), 2.2),  # 4
    Part.Circle(V(-2.2, -182.4, 0), V(0, 0, 1), 2.2),  # 5
    Part.Circle(V(97.8, -182.4, 0), V(0, 0, 1), 2.2),  # 6
], False)
sketch11.addConstraint([
    Sketcher.Constraint("Coincident", 0, 2, 1, 1),
    Sketcher.Constraint("Coincident", 1, 2, 2, 1),
    Sketcher.Constraint("Coincident", 2, 2, 3, 1),
    Sketcher.Constraint("Coincident", 3, 2, 0, 1),
    Sketcher.Constraint("Vertical", 0),
    Sketcher.Constraint("Horizontal", 1),
    Sketcher.Constraint("Vertical", 2),
    Sketcher.Constraint("Horizontal", 3),
    Sketcher.Constraint("Equal", 4, 5),
    Sketcher.Constraint("Equal", 5, 6),
    Sketcher.Constraint("Horizontal", 4, 3, 5, 3),
    Sketcher.Constraint("Horizontal", 5, 3, 6, 3),
    Sketcher.Constraint("Diameter", 4, Q("4.5 mm")),
    Sketcher.Constraint("DistanceX", 1, 1, 1, 2, Q("233 mm")),
    Sketcher.Constraint("DistanceY", 0, 2, 0, 1, Q("20 mm")),
    Sketcher.Constraint("DistanceX", 4, 3, 5, 3, Q("100 mm")),
    Sketcher.Constraint("DistanceX", 5, 3, 6, 3, Q("100 mm")),
    Sketcher.Constraint("DistanceY", 0, 2, 4, 3, Q("10 mm")),
    Sketcher.Constraint("DistanceX", 0, 2, 4, 3, Q("16.5 mm")),
    Sketcher.Constraint("DistanceX", 4, 3, -1, 1, Q("102.172301 mm")),
    Sketcher.Constraint("DistanceY", 4, 3, -1, 1, Q("182.432046 mm")),
])
sketch11.setExpression("Constraints[12]", "Params.sketch11_diameter")
sketch11.setExpression("Constraints[13]", "Params.sketch11_width")
sketch11.setExpression("Constraints[14]", "Params.sketch11_height")
pad11 = doc.addObject("PartDesign::Pad", "Pad010")
body9.addObject(pad11)
pad11.Profile = sketch11
pad11.setExpression("Length", "Params.pad11_length")

# Sketch on XY plane
sketch12 = doc.addObject("Sketcher::SketchObject", "Sketch011")
body9.addObject(sketch12)
sketch12.AttachmentSupport = (doc.getObject("XY_Plane008"), [""])
sketch12.MapMode = "FlatFace"
sketch12.addGeometry([
    Part.LineSegment(V(-118.7, -189.4, 0), V(-118.7, -192.4, 0)),
    Part.LineSegment(V(-118.7, -192.4, 0), V(114.3, -192.4, 0)),
    Part.LineSegment(V(114.3, -192.4, 0), V(114.3, -189.4, 0)),
    Part.LineSegment(V(114.3, -189.4, 0), V(-118.7, -189.4, 0)),
], False)
sketch12.addConstraint([
    Sketcher.Constraint("Coincident", 0, 2, 1, 1),
    Sketcher.Constraint("Coincident", 1, 2, 2, 1),
    Sketcher.Constraint("Coincident", 2, 2, 3, 1),
    Sketcher.Constraint("Coincident", 3, 2, 0, 1),
    Sketcher.Constraint("Vertical", 0),
    Sketcher.Constraint("Horizontal", 1),
    Sketcher.Constraint("Vertical", 2),
    Sketcher.Constraint("Horizontal", 3),
    Sketcher.Constraint("DistanceX", 1, 1, 1, 2, Q("233 mm")),
    Sketcher.Constraint("DistanceY", 0, 2, 0, 1, Q("3 mm")),
    Sketcher.Constraint("DistanceX", 0, 2, -1, 1, Q("118.672301 mm")),
    Sketcher.Constraint("DistanceY", 0, 2, -1, 1, Q("192.432046 mm")),
])
sketch12.setExpression("Constraints[8]", "Params.sketch12_width")
sketch12.setExpression("Constraints[9]", "Params.sketch12_height")
pad12 = doc.addObject("PartDesign::Pad", "Pad011")
body9.addObject(pad12)
pad12.Profile = sketch12
pad12.setExpression("Length", "Params.pad12_length")
mirroring.Visibility = False

doc.recompute()
